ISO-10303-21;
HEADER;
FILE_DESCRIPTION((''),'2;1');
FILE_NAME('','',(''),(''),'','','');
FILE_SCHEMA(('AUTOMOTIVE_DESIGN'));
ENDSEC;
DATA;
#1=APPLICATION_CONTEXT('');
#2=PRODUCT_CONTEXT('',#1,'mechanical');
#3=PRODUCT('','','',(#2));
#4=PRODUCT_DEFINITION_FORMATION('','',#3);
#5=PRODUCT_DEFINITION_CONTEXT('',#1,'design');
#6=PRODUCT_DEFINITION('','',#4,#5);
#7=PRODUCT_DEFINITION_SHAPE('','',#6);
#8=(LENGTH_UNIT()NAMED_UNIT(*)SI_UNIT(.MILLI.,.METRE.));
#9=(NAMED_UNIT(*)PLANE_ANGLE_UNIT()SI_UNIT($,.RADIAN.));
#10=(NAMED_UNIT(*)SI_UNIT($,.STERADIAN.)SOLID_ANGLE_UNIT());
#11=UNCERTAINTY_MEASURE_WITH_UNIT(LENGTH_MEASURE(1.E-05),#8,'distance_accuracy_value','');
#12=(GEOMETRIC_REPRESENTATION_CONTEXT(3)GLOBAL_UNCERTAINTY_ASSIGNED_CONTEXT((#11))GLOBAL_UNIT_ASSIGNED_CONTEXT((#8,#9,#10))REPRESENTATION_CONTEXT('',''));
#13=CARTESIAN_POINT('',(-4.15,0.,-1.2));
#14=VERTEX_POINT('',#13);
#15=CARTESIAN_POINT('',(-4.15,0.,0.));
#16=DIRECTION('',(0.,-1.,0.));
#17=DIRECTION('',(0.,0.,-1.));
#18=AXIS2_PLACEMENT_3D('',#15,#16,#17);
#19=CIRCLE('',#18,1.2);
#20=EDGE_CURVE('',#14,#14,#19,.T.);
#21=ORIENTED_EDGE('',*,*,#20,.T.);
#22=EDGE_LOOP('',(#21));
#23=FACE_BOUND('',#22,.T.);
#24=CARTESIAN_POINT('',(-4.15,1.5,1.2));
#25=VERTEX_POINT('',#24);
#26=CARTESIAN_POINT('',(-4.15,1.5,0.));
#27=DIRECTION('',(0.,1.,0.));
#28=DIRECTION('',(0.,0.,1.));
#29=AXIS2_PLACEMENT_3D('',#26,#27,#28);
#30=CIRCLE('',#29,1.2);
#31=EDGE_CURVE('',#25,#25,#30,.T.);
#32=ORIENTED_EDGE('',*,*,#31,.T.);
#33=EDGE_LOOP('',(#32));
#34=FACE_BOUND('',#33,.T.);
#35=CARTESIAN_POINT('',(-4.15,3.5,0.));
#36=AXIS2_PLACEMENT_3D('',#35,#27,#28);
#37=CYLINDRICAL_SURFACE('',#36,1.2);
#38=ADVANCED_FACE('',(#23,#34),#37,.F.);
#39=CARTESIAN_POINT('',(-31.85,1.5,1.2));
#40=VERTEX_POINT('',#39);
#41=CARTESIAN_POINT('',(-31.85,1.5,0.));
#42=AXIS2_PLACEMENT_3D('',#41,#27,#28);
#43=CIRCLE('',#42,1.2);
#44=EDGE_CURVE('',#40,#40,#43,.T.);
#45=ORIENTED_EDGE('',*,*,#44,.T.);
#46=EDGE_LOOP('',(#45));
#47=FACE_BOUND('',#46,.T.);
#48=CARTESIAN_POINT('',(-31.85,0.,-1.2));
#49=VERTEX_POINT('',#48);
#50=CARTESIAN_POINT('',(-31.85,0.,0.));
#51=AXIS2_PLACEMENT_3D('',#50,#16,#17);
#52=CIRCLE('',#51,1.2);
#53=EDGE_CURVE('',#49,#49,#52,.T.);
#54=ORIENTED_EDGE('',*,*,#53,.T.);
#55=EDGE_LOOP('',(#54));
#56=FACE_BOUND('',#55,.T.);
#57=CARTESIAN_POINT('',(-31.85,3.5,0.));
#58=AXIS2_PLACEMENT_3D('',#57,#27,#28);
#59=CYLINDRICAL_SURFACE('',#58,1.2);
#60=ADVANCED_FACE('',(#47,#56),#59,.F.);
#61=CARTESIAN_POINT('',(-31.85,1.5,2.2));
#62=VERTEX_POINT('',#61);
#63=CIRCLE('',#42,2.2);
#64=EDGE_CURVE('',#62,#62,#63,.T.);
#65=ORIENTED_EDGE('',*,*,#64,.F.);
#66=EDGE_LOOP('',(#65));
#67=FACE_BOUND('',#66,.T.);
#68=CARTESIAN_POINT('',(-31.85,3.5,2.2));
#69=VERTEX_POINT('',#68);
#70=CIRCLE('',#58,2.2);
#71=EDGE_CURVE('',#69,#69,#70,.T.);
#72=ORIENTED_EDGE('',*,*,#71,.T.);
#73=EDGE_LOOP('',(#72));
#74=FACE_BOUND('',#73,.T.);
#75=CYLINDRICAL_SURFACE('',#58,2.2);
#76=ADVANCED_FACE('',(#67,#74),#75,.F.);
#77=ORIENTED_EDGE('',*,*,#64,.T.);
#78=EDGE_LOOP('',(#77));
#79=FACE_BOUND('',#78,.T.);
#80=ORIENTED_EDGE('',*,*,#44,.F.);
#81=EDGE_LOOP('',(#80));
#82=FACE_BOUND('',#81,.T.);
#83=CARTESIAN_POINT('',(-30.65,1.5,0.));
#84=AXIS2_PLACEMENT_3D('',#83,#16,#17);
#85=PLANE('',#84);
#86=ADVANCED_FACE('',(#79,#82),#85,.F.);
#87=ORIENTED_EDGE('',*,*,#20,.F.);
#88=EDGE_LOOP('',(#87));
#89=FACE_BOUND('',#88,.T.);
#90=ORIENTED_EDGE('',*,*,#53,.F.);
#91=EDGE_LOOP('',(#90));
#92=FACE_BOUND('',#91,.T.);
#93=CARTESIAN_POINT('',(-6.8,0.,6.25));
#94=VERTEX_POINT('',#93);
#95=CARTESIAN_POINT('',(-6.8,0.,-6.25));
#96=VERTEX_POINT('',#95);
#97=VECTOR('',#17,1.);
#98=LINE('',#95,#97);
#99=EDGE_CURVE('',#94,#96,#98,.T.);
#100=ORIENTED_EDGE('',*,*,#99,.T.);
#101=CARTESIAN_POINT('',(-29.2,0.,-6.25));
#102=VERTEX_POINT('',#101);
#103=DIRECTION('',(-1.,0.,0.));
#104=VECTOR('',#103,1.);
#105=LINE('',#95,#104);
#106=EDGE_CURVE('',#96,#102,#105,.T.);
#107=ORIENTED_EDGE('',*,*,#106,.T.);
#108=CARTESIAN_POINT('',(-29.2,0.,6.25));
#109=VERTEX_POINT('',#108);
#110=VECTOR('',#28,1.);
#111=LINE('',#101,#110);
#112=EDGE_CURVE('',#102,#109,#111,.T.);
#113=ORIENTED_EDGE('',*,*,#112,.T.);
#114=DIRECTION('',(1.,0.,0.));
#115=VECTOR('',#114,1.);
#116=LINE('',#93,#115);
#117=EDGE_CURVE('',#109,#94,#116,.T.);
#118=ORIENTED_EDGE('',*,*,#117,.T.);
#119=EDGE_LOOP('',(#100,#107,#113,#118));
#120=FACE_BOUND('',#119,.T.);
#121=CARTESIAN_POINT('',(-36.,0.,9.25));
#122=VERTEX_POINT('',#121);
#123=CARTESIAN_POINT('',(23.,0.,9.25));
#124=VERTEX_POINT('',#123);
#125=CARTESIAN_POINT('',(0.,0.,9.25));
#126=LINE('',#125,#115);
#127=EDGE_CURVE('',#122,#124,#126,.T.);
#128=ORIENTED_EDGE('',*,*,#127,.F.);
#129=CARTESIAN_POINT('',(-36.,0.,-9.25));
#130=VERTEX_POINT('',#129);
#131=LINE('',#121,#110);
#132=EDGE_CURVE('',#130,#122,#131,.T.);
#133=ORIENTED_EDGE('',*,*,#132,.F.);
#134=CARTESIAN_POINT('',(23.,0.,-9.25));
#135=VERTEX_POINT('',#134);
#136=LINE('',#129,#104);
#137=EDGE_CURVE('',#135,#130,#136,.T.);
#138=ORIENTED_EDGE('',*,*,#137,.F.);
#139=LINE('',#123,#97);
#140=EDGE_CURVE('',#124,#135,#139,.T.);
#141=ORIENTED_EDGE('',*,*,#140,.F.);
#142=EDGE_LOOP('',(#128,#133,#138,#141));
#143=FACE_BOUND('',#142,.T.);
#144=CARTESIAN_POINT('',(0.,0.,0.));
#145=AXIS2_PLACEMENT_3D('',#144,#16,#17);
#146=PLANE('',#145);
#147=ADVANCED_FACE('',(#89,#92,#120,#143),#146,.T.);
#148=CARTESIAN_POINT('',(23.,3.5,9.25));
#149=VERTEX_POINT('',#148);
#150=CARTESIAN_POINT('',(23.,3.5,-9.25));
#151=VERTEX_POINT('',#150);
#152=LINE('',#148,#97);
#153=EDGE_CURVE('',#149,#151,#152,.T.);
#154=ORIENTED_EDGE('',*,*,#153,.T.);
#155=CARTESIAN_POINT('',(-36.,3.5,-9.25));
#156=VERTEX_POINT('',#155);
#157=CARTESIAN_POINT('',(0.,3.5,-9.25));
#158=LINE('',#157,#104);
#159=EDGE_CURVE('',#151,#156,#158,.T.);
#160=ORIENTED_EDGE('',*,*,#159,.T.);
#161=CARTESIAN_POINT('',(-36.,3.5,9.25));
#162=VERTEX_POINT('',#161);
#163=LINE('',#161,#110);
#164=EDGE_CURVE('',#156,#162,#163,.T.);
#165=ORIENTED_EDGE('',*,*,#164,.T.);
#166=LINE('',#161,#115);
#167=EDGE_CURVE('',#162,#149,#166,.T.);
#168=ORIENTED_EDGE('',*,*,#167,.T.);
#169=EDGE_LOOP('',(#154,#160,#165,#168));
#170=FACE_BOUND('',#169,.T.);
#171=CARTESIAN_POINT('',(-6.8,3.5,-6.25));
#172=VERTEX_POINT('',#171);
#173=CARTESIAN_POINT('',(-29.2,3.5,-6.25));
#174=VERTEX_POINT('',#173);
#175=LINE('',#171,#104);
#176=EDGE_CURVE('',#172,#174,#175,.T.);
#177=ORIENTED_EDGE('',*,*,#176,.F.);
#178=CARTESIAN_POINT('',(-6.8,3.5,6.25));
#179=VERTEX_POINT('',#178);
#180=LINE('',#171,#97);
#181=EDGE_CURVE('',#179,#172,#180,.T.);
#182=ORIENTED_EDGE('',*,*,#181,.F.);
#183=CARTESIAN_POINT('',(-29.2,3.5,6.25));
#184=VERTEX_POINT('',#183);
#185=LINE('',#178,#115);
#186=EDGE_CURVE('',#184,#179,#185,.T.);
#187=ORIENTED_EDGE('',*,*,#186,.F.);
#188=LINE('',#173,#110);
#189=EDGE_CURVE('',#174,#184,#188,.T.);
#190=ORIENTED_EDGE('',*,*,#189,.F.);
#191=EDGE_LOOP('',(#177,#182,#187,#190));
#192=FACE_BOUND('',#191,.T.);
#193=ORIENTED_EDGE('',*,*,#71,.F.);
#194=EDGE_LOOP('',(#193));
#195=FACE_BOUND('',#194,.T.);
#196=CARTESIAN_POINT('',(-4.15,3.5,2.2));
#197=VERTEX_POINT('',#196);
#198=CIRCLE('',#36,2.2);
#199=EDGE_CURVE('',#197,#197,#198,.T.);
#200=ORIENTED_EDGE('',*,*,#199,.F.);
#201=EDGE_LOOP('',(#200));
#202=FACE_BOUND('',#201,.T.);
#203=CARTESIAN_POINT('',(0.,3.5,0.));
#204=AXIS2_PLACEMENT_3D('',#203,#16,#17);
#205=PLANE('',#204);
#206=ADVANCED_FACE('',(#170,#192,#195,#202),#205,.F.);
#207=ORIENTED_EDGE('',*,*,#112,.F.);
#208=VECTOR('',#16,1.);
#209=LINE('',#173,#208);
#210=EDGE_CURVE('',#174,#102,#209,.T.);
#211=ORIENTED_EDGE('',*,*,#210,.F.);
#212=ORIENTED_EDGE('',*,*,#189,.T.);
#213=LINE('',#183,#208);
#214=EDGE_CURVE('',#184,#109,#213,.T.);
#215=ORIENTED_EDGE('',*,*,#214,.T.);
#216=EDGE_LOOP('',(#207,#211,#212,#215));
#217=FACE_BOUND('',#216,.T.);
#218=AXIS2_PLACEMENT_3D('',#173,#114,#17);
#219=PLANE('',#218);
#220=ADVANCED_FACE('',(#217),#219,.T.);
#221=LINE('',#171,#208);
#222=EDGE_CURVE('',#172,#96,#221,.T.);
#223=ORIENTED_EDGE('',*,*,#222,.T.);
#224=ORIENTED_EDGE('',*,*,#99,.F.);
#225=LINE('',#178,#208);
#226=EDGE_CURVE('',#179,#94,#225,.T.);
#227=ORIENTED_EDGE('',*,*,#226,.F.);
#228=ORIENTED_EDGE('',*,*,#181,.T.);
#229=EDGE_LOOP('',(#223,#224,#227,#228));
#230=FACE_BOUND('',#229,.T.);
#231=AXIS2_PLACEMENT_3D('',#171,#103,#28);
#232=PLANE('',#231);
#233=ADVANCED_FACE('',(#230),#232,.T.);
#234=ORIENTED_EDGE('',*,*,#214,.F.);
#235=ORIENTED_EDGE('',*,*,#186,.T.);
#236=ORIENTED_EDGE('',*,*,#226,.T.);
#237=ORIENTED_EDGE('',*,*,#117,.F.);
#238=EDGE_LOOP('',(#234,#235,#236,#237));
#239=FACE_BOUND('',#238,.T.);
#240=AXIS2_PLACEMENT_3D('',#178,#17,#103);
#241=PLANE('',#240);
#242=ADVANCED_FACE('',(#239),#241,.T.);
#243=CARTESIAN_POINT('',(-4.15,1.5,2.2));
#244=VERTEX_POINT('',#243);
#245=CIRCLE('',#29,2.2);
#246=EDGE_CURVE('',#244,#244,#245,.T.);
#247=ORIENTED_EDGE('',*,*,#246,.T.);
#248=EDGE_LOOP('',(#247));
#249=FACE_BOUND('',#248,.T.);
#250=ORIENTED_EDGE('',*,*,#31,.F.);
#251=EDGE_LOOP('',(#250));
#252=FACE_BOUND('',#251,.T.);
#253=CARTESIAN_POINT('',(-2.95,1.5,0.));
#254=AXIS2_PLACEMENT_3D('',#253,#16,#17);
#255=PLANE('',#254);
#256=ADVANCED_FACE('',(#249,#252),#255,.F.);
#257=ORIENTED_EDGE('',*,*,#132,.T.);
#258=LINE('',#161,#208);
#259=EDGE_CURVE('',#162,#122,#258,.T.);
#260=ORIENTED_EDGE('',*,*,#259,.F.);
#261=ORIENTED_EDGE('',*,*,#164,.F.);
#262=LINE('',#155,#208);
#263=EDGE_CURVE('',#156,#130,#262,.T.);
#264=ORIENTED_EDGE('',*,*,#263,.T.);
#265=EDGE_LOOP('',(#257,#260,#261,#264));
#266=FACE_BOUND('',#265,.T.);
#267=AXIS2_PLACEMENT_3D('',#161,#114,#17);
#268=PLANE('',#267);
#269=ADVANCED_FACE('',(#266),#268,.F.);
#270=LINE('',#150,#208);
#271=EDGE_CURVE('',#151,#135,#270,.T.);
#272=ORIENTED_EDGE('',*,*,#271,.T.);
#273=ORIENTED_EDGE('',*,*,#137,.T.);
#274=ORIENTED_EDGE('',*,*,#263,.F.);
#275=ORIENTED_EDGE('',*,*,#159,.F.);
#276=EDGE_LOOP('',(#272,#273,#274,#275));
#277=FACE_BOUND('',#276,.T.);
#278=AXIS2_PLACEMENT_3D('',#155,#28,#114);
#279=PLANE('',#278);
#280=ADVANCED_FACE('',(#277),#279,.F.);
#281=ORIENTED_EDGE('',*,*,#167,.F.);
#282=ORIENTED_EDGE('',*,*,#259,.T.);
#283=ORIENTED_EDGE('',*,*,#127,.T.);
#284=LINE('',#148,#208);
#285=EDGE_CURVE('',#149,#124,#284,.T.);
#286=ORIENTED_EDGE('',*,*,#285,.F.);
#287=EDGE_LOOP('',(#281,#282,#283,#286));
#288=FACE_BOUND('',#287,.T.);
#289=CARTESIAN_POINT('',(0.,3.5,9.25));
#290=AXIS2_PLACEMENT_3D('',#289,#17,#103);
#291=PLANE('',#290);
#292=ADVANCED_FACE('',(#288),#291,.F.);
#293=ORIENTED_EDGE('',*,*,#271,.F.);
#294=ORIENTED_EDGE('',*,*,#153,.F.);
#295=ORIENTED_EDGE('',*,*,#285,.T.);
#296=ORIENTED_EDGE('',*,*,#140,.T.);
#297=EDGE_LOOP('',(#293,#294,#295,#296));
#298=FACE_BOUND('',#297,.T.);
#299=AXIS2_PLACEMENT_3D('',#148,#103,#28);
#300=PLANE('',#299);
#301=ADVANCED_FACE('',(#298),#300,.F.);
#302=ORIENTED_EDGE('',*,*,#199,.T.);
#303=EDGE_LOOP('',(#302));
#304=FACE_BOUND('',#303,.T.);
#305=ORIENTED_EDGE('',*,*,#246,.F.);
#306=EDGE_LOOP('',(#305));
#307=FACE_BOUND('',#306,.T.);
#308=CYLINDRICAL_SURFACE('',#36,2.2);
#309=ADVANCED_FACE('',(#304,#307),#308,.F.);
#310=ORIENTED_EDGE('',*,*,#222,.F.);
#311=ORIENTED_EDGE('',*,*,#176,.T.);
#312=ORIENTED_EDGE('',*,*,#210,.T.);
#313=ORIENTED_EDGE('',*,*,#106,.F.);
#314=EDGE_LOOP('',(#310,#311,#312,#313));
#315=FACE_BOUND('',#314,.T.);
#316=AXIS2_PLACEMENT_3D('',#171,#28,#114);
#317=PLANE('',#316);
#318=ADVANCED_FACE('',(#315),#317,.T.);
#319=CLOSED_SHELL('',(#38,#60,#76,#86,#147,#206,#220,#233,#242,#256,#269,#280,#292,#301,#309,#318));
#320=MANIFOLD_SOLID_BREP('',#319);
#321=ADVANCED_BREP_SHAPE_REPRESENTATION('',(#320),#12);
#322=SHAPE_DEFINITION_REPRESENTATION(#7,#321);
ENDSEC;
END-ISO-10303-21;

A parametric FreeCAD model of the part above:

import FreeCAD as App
import Part
import Sketcher
from FreeCAD import Vector

doc = App.newDocument("Part")
body = doc.addObject("PartDesign::Body", "Body")

# Sketch on XZ plane
sketch1 = doc.addObject("Sketcher::SketchObject", "Sketch")
body.addObject(sketch1)
sketch1.AttachmentSupport = (doc.XZ_Plane, [""])
sketch1.MapMode = "FlatFace"
sketch1.addGeometry([
    Part.LineSegment(Vector(-36, 9, 0), Vector(23, 9, 0)),  # 0
    Part.LineSegment(Vector(23, 9, 0), Vector(23, -9, 0)),  # 1
    Part.LineSegment(Vector(23, -9, 0), Vector(-36, -9, 0)),  # 2
    Part.LineSegment(Vector(-36, -9, 0), Vector(-36, 9, 0)),  # 3
    Part.LineSegment(Vector(-7, 6, 0), Vector(-29, 6, 0)),  # 4
    Part.LineSegment(Vector(-29, 6, 0), Vector(-29, -6, 0)),  # 5
    Part.LineSegment(Vector(-29, -6, 0), Vector(-7, -6, 0)),  # 6
    Part.LineSegment(Vector(-7, -6, 0), Vector(-7, 6, 0)),  # 7
], False)
sketch1.addConstraint([
    Sketcher.Constraint("Coincident", 0, 2, 1, 1),
    Sketcher.Constraint("Coincident", 1, 2, 2, 1),
    Sketcher.Constraint("Coincident", 2, 2, 3, 1),
    Sketcher.Constraint("Coincident", 3, 2, 0, 1),
    Sketcher.Constraint("Coincident", 4, 2, 5, 1),
    Sketcher.Constraint("Coincident", 5, 2, 6, 1),
    Sketcher.Constraint("Coincident", 6, 2, 7, 1),
    Sketcher.Constraint("Coincident", 7, 2, 4, 1),
    Sketcher.Constraint("Horizontal", 0),
    Sketcher.Constraint("Vertical", 1),
    Sketcher.Constraint("Horizontal", 2),
    Sketcher.Constraint("Vertical", 3),
    Sketcher.Constraint("Horizontal", 4),
    Sketcher.Constraint("Vertical", 5),
    Sketcher.Constraint("Horizontal", 6),
    Sketcher.Constraint("Vertical", 7),
    Sketcher.Constraint("DistanceX", 0, 1, 0, 2, 59.0),
    Sketcher.Constraint("DistanceX", 4, 2, 4, 1, 22.4),
    Sketcher.Constraint("DistanceY", 1, 2, 1, 1, 18.5),
    Sketcher.Constraint("DistanceY", 5, 2, 5, 1, 12.5),
    Sketcher.Constraint("DistanceX", -1, 1, 0, 2, 23.0),
    Sketcher.Constraint("DistanceY", 4, 2, 3, 2, 3.0),
    Sketcher.Constraint("DistanceX", 4, 2, -1, 1, 29.2),
    Sketcher.Constraint("DistanceY", -1, 1, 0, 2, 9.25),
])
pad1 = doc.addObject("PartDesign::Pad", "Pad")
body.addObject(pad1)
pad1.Profile = sketch1
pad1.Length = 3.5
pad1.Reversed = True

# Sketch on XZ plane
sketch2 = doc.addObject("Sketcher::SketchObject", "Sketch001")
body.addObject(sketch2)
sketch2.AttachmentSupport = (doc.XZ_Plane, [""])
sketch2.MapMode = "FlatFace"
sketch2.AttachmentOffset = App.Placement(Vector(0, 0, -3.5), App.Rotation())
sketch2.addGeometry([
    Part.Circle(Vector(-31.9, 0, 0), Vector(0, 0, 1), 1.2),
    Part.Circle(Vector(-4.2, 0, 0), Vector(0, 0, 1), 1.2),
], False)
sketch2.addConstraint([
    Sketcher.Constraint("Equal", 0, 1),
    Sketcher.Constraint("PointOnObject", 0, 3, -1),
    Sketcher.Constraint("PointOnObject", 1, 3, -1),
    Sketcher.Constraint("Diameter", 0, 2.4),
    Sketcher.Constraint("DistanceX", 0, 3, 1, 3, 27.7),
    Sketcher.Constraint("DistanceX", 0, 3, -1, 1, 31.85),
])
doc.recompute()
hole = doc.addObject("PartDesign::Hole", "Hole")
body.addObject(hole)
hole.Profile = sketch2
hole.ThreadType = "None"
hole.Diameter = 2.4
hole.DepthType = "ThroughAll"
hole.HoleCutType = "Counterbore"
hole.HoleCutDiameter = 4.4
hole.HoleCutDepth = 2
hole.Reversed = True

doc.recompute()
